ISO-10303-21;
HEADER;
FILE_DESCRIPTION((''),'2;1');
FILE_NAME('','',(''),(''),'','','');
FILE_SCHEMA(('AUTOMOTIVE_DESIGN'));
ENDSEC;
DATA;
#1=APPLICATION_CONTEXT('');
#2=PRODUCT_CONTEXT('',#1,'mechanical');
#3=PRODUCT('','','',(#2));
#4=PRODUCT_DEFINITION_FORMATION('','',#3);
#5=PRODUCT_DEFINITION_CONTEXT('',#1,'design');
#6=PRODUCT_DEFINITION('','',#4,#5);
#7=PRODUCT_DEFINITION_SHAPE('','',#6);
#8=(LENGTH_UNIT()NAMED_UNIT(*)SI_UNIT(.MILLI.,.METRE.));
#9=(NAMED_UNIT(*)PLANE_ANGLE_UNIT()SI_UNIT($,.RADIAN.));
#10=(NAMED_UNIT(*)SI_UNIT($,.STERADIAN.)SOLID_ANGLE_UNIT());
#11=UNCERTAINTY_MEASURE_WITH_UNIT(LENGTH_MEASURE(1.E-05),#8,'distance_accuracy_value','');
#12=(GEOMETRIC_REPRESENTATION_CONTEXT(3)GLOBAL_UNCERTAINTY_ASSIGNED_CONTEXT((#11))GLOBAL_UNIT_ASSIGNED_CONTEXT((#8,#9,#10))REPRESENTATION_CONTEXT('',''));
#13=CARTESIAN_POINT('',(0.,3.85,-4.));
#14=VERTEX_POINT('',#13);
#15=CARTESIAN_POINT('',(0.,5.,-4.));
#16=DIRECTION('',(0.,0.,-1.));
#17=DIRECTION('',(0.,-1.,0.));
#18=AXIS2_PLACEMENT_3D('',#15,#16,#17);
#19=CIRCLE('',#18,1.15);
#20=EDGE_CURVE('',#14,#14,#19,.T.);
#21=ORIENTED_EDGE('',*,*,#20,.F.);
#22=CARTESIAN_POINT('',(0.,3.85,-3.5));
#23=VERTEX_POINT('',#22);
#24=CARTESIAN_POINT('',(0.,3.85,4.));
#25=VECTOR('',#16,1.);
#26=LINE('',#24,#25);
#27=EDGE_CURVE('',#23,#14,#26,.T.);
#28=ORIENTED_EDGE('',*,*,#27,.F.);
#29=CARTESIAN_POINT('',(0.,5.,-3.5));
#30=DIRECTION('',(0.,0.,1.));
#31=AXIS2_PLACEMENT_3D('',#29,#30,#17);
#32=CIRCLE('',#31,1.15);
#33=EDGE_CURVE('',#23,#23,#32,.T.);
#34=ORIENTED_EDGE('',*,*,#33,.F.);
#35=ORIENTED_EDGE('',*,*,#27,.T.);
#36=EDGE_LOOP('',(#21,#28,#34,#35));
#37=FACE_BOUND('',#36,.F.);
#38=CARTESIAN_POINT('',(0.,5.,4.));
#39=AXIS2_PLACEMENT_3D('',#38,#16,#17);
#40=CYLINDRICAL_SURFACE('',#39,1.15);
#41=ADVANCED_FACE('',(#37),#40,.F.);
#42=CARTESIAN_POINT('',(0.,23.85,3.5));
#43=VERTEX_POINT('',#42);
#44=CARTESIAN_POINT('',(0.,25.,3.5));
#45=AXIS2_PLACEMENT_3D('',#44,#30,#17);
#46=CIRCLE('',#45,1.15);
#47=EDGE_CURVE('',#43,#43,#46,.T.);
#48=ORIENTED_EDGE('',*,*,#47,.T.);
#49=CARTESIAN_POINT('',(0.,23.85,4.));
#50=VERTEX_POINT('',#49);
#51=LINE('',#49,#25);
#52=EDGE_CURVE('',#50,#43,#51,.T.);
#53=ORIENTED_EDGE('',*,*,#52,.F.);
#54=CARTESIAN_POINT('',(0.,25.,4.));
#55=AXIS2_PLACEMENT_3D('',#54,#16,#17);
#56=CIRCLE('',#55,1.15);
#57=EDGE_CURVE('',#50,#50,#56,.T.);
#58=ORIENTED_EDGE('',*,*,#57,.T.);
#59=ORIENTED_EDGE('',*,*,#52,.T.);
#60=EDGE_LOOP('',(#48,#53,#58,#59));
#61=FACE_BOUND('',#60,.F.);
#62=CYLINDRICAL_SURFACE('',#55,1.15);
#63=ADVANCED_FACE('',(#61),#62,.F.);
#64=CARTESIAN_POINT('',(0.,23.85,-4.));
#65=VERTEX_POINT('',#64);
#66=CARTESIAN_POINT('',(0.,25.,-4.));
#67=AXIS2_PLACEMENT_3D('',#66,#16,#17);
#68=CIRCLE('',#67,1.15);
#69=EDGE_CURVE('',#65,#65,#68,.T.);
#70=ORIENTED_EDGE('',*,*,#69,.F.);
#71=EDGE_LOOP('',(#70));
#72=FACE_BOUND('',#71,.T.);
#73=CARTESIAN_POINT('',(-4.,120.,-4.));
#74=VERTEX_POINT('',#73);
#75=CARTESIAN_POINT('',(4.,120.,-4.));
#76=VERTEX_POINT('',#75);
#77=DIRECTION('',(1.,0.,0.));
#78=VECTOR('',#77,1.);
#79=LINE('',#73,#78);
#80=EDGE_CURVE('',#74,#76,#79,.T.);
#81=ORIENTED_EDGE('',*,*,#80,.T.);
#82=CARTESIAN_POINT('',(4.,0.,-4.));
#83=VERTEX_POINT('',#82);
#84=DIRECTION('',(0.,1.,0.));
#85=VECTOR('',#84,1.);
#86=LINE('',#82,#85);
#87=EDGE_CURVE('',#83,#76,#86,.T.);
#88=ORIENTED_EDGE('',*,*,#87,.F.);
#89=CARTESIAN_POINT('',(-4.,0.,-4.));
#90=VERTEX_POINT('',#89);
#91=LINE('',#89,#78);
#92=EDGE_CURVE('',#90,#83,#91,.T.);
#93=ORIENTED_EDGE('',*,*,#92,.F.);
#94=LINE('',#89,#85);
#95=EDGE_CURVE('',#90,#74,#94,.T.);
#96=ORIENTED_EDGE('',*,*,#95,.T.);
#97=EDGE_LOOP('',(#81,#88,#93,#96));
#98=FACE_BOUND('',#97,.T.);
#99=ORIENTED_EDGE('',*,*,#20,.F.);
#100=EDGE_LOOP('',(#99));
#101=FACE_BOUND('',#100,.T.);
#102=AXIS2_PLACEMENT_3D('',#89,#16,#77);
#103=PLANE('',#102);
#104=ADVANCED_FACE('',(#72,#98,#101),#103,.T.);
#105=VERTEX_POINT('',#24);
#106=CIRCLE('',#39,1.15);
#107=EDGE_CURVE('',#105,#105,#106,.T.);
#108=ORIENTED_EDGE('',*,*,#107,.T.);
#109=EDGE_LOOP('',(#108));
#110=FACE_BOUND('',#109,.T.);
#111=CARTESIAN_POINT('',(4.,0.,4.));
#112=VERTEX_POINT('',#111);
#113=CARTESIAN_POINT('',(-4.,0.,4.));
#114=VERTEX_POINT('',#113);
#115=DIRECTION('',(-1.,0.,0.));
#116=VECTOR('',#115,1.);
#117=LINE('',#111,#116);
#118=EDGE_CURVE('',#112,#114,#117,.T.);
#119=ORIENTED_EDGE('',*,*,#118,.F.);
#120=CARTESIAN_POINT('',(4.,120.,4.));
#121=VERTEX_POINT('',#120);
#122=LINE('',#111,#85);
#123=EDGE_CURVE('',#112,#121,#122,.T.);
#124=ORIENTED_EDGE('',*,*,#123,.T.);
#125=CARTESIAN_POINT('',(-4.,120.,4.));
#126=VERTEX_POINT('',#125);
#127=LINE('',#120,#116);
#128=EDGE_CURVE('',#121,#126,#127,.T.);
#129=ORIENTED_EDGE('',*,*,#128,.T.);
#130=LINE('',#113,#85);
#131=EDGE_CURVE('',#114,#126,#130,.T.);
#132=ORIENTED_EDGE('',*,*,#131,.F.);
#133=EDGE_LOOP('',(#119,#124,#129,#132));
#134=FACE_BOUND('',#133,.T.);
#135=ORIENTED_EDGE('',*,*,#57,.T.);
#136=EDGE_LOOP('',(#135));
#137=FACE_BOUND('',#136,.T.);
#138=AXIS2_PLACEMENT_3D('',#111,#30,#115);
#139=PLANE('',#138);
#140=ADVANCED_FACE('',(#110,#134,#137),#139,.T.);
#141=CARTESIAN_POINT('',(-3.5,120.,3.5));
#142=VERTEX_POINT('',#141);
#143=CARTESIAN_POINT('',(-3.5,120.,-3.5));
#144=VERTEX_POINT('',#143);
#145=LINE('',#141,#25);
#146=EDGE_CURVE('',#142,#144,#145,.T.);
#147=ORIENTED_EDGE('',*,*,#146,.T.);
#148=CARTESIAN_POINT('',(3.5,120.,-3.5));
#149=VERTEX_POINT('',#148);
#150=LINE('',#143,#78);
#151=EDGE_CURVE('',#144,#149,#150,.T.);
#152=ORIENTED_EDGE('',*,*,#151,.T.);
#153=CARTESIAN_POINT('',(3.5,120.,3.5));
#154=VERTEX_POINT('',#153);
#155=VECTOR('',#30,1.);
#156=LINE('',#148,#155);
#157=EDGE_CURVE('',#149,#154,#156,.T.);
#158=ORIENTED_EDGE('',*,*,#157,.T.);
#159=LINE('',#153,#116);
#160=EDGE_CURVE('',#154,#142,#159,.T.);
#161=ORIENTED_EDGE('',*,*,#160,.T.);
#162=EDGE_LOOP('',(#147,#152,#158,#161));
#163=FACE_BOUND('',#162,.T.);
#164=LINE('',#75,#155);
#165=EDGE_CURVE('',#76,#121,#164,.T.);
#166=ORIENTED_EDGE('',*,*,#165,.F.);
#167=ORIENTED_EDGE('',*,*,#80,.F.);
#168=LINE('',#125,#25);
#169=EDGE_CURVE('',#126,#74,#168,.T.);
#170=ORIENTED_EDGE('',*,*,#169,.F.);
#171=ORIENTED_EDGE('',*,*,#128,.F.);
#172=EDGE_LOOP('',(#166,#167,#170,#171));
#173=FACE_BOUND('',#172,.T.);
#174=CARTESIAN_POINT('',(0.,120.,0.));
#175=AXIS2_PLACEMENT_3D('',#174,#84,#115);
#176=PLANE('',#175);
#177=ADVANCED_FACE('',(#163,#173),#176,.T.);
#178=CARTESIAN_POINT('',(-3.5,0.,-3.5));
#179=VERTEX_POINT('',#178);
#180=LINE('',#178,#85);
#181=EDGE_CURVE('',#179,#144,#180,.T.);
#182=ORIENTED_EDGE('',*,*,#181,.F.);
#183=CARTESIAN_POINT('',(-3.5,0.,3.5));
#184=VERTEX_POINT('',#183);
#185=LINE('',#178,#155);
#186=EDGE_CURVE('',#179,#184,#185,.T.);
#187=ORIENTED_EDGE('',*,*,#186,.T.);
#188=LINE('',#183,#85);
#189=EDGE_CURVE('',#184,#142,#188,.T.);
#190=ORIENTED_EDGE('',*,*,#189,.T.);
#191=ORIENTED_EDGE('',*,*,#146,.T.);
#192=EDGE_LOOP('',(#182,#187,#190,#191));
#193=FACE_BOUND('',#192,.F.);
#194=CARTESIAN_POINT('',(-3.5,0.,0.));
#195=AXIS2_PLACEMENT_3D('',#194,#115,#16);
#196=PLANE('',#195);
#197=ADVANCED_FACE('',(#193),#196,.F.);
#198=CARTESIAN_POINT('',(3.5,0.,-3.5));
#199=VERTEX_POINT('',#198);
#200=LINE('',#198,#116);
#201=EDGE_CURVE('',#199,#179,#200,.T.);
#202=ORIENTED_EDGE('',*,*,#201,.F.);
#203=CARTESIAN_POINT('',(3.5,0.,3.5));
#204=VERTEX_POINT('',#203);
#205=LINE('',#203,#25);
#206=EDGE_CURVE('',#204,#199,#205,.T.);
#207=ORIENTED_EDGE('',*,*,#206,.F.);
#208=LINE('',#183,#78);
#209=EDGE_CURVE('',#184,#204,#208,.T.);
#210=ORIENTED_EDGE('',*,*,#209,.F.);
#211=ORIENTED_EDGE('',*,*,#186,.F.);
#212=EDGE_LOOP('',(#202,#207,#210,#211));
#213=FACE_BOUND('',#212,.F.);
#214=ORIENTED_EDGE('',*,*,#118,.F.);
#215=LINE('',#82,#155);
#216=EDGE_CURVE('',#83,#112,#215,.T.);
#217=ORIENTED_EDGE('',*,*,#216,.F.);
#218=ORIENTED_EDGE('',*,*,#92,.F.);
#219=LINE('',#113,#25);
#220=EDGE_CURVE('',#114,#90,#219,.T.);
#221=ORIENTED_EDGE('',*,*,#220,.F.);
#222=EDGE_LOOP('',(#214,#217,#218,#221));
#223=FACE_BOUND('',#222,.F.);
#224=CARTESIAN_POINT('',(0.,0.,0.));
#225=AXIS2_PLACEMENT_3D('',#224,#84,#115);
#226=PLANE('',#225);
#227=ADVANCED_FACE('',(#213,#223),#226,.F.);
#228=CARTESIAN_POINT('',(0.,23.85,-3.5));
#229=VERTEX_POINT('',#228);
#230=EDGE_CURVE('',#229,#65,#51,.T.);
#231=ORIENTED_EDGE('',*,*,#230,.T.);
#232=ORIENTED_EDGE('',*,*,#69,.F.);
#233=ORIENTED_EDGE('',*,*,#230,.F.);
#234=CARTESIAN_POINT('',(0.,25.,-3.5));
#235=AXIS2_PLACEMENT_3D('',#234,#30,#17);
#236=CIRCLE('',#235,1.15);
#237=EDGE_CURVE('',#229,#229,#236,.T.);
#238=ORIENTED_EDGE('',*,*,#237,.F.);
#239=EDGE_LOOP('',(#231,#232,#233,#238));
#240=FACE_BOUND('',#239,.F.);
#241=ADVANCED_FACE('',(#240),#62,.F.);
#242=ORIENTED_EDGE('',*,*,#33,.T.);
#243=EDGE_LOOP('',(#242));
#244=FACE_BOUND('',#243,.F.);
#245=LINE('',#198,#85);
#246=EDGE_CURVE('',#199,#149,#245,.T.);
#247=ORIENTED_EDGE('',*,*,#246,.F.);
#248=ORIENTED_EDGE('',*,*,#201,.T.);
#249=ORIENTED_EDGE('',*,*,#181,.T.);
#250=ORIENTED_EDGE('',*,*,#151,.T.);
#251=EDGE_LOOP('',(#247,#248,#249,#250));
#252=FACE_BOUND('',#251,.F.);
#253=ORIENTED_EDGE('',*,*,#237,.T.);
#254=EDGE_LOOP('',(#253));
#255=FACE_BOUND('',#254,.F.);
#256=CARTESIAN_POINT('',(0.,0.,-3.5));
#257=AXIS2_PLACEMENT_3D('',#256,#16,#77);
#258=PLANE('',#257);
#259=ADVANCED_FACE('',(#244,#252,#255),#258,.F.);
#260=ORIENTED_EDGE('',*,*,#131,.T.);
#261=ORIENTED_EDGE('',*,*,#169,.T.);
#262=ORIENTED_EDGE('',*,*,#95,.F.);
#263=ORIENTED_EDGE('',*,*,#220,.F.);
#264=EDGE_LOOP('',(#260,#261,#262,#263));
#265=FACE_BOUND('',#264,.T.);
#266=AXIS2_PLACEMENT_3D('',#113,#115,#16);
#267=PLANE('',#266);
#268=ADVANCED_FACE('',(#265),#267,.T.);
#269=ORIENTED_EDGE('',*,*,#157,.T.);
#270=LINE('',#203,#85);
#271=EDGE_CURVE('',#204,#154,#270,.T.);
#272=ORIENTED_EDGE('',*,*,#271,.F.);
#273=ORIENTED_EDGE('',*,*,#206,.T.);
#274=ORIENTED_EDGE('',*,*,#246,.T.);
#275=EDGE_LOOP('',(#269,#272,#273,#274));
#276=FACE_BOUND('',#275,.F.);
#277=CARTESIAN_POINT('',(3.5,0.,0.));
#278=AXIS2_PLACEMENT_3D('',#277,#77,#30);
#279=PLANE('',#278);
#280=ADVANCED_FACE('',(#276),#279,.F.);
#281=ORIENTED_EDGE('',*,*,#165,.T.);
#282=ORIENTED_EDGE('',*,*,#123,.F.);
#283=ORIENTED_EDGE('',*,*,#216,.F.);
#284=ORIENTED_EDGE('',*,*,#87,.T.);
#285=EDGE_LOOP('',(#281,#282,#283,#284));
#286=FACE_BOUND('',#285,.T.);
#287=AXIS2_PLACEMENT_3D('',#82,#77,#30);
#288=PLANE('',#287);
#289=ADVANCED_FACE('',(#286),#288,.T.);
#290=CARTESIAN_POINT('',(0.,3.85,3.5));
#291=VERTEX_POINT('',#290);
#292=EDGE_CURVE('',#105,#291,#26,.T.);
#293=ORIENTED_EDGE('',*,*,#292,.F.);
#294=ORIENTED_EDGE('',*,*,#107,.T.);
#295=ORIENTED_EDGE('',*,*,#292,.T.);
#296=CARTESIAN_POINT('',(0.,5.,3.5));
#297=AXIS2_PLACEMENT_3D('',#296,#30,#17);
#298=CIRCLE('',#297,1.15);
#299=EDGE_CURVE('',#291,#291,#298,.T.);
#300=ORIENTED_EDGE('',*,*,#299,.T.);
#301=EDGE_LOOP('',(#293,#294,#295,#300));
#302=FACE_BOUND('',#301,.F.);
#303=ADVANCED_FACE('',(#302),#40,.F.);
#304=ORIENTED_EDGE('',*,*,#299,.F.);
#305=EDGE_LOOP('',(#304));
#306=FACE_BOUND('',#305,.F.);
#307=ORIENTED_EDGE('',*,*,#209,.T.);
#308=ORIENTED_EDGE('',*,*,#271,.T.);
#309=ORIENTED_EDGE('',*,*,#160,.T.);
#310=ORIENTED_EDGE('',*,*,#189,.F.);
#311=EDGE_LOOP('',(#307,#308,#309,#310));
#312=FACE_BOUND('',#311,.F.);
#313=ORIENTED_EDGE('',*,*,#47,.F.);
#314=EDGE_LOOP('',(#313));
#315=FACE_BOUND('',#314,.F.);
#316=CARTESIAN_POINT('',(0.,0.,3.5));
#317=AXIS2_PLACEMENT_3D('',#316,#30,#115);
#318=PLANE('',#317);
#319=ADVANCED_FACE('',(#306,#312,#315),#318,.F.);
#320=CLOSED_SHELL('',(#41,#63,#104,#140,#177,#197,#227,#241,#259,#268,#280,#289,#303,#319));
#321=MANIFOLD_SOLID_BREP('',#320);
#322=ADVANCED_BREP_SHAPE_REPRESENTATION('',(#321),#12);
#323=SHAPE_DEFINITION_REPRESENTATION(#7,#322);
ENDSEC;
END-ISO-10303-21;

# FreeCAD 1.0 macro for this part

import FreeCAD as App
import Part
import Sketcher

V = App.Vector


def add_polygon(sketch, points):
    """Adds a closed chain of lines whose ends are joined by coincident constraints."""
    first, n = sketch.GeometryCount, len(points)
    for a, b in zip(points, points[1:] + points[:1]):
        sketch.addGeometry(Part.LineSegment(App.Vector(*a, 0), App.Vector(*b, 0)), False)
    for i in range(n):
        sketch.addConstraint(Sketcher.Constraint("Coincident", first + i, 2, first + (i + 1) % n, 1))

doc = App.newDocument("Part")
body = doc.addObject("PartDesign::Body", "Body")

sketch1 = body.newObject("Sketcher::SketchObject", "Sketch")
sketch1.AttachmentSupport = (doc.getObject("XZ_Plane"), [""])
sketch1.MapMode = "FlatFace"
add_polygon(sketch1, [(4, -4), (-4, -4), (-4, 4), (4, 4)])
add_polygon(sketch1, [(-4, 4), (-4, -4), (4, -4), (4, 4)])
sketch1.addConstraint(Sketcher.Constraint("Horizontal", 0))
sketch1.addConstraint(Sketcher.Constraint("Vertical", 1))
sketch1.addConstraint(Sketcher.Constraint("Horizontal", 2))
sketch1.addConstraint(Sketcher.Constraint("Vertical", 3))
sketch1.addConstraint(Sketcher.Constraint("Vertical", 4))
sketch1.addConstraint(Sketcher.Constraint("Horizontal", 5))
sketch1.addConstraint(Sketcher.Constraint("Vertical", 6))
sketch1.addConstraint(Sketcher.Constraint("Horizontal", 7))
sketch1.addConstraint(Sketcher.Constraint("Symmetric", 0, 2, 2, 2, -1, 1))
sketch1.addConstraint(Sketcher.Constraint("Symmetric", 4, 2, 6, 2, -1, 1))
sketch1.addConstraint(Sketcher.Constraint("Equal", 2, 1))
sketch1.addConstraint(Sketcher.Constraint("Equal", 7, 4))
sketch1.addConstraint(Sketcher.Constraint("DistanceX", 5, 1, 5, 2, 7.0))
sketch1.addConstraint(Sketcher.Constraint("DistanceX", 0, 2, 4, 2, 0.5))
pad1 = body.newObject("PartDesign::Pad", "Pad")
pad1.Profile = sketch1
pad1.Length = 120
pad1.Reversed = True

sketch2 = body.newObject("Sketcher::SketchObject", "Sketch001")
sketch2.AttachmentSupport = (doc.getObject("XY_Plane"), [""])
sketch2.MapMode = "FlatFace"
sketch2.AttachmentOffset = App.Placement(V(0, 0, 4), App.Rotation())
sketch2.addGeometry(Part.Circle(V(0, 5, 0), V(0, 0, 1), 1.1), False)
sketch2.addGeometry(Part.Circle(V(0, 25, 0), V(0, 0, 1), 1.1), False)
sketch2.addConstraint(Sketcher.Constraint("Equal", 0, 1))
sketch2.addConstraint(Sketcher.Constraint("PointOnObject", 0, 3, -2))
sketch2.addConstraint(Sketcher.Constraint("PointOnObject", 1, 3, -2))
sketch2.addConstraint(Sketcher.Constraint("Diameter", 0, 2.3))
sketch2.addConstraint(Sketcher.Constraint("DistanceY", -1, 1, 0, 3, 5.0))
sketch2.addConstraint(Sketcher.Constraint("DistanceY", -1, 1, 1, 3, 25.0))
doc.recompute()
hole = body.newObject("PartDesign::Hole", "Hole")
hole.Profile = sketch2
hole.ThreadType = "None"
hole.Diameter = 2.3
hole.DepthType = "ThroughAll"

doc.recompute()
